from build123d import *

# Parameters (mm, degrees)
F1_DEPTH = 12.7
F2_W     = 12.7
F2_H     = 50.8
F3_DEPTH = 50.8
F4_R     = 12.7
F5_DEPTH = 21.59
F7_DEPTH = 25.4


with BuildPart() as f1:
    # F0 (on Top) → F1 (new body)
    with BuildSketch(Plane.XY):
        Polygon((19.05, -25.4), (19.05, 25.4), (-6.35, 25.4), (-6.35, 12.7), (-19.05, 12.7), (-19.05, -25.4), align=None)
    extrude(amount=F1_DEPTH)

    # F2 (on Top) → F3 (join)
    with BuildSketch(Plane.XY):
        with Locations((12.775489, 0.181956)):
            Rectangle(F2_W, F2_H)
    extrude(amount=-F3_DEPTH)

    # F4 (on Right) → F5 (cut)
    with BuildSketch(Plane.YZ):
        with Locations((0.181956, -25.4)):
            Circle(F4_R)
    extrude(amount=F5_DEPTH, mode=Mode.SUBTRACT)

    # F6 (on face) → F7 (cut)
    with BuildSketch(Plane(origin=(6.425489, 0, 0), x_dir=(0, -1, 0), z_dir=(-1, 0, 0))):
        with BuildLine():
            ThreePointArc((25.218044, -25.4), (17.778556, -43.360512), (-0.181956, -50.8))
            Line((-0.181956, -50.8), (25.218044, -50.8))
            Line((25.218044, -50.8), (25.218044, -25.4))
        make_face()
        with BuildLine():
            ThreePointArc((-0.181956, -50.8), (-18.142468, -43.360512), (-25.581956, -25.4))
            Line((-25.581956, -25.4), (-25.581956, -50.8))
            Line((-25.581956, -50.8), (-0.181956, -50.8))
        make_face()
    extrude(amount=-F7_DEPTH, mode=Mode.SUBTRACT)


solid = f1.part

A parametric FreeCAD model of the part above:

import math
import FreeCAD as App
import Part
import Sketcher
Q = App.Units.Quantity


def add_polygon(sketch, points):
    """Adds a closed chain of lines whose ends are joined by coincident constraints."""
    first, n = sketch.GeometryCount, len(points)
    for a, b in zip(points, points[1:] + points[:1]):
        sketch.addGeometry(Part.LineSegment(App.Vector(*a, 0), App.Vector(*b, 0)), False)
    for i in range(n):
        sketch.addConstraint(Sketcher.Constraint("Coincident", first + i, 2, first + (i + 1) % n, 1))

doc = App.newDocument("Part")
body = doc.addObject("PartDesign::Body", "Body")

# Sketch on XY plane
sketch1 = body.newObject("Sketcher::SketchObject", "Sketch")
sketch1.AttachmentSupport = (doc.getObject("XY_Plane"), [""])
sketch1.MapMode = "FlatFace"
add_polygon(sketch1, [(19, -25), (19, 25), (-6, 25), (-6, 13), (-19, 13), (-19, -25)])  # lines 0-5
sketch1.addConstraint([
    Sketcher.Constraint("Vertical", 0),
    Sketcher.Constraint("Horizontal", 1),
    Sketcher.Constraint("Vertical", 2),
    Sketcher.Constraint("Horizontal", 3),
    Sketcher.Constraint("Vertical", 4),
    Sketcher.Constraint("Horizontal", 5),
    Sketcher.Constraint("Symmetric", 0, 2, 4, 2, -1, 1),
    Sketcher.Constraint("Equal", 3, 2),
    Sketcher.Constraint("Equal", 5, 4),
    Sketcher.Constraint("DistanceX", 1, 2, 1, 1, Q("1 in")),
    Sketcher.Constraint("DistanceY", 0, 1, 0, 2, Q("2 in")),
])
pad1 = body.newObject("PartDesign::Pad", "Pad")
pad1.Profile = sketch1
pad1.Length = Q("0.5 in")

# Sketch on XY plane
sketch2 = body.newObject("Sketcher::SketchObject", "Sketch001")
sketch2.AttachmentSupport = (doc.getObject("XY_Plane"), [""])
sketch2.MapMode = "FlatFace"
add_polygon(sketch2, [(6, 26), (6, -25), (19, -25), (19, 26)])  # lines 0-3
sketch2.addConstraint([
    Sketcher.Constraint("Vertical", 0),
    Sketcher.Constraint("Horizontal", 1),
    Sketcher.Constraint("Vertical", 2),
    Sketcher.Constraint("Horizontal", 3),
    Sketcher.Constraint("DistanceY", 0, 2, 0, 1, Q("2 in")),
    Sketcher.Constraint("DistanceX", 1, 1, 1, 2, Q("0.5 in")),
    Sketcher.Constraint("DistanceX", -1, 1, 0, 2, 6.425489),
    Sketcher.Constraint("DistanceY", 0, 2, -1, 1, 25.218044),
])
pad2 = body.newObject("PartDesign::Pad", "Pad001")
pad2.Profile = sketch2
pad2.Length = Q("2 in")
pad2.Reversed = True

# Sketch on YZ plane
sketch3 = body.newObject("Sketcher::SketchObject", "Sketch002")
sketch3.AttachmentSupport = (doc.getObject("YZ_Plane"), [""])
sketch3.MapMode = "FlatFace"
sketch3.addGeometry(Part.Circle(App.Vector(0, -25, 0), App.Vector(0, 0, 1), 13), False)
sketch3.addConstraint([
    Sketcher.Constraint("Diameter", 0, Q("1 in")),
    Sketcher.Constraint("DistanceY", 0, 3, -1, 1, Q("1 in")),
    Sketcher.Constraint("DistanceX", -1, 1, 0, 3, 0.181956),
])
pocket1 = body.newObject("PartDesign::Pocket", "Pocket")
pocket1.Profile = sketch3
pocket1.Length = Q("0.85 in")
pocket1.Reversed = True

# Sketch on YZ plane
sketch4 = body.newObject("Sketcher::SketchObject", "Sketch003")
sketch4.AttachmentSupport = (doc.getObject("YZ_Plane"), [""])
sketch4.MapMode = "FlatFace"
sketch4.AttachmentOffset = App.Placement(App.Vector(0, 0, 6.425489), App.Rotation())
sketch4.addGeometry([
    Part.ArcOfCircle(Part.Circle(App.Vector(0, -25, 0), App.Vector(0, 0, 1), 25), math.radians(-180), math.radians(-90)),  # 0
    Part.LineSegment(App.Vector(0, -51, 0), App.Vector(-25, -51, 0)),  # 1
    Part.LineSegment(App.Vector(-25, -51, 0), App.Vector(-25, -25, 0)),  # 2
    Part.ArcOfCircle(Part.Circle(App.Vector(0, -25, 0), App.Vector(0, 0, 1), 25), math.radians(-90), math.radians(0)),  # 3
    Part.LineSegment(App.Vector(26, -25, 0), App.Vector(26, -51, 0)),  # 4
    Part.LineSegment(App.Vector(26, -51, 0), App.Vector(0, -51, 0)),  # 5
], False)
sketch4.addConstraint([
    Sketcher.Constraint("Tangent", 0, 2, 1, 1),
    Sketcher.Constraint("Coincident", 1, 2, 2, 1),
    Sketcher.Constraint("Tangent", 2, 2, 0, 1),
    Sketcher.Constraint("Tangent", 3, 2, 4, 1),
    Sketcher.Constraint("Coincident", 4, 2, 5, 1),
    Sketcher.Constraint("Tangent", 5, 2, 3, 1),
    Sketcher.Constraint("Horizontal", 1),
    Sketcher.Constraint("Vertical", 2),
    Sketcher.Constraint("Vertical", 4),
    Sketcher.Constraint("Horizontal", 5),
    Sketcher.Constraint("Coincident", 3, 3, 0, 3),
    Sketcher.Constraint("Equal", 0, 3),
    Sketcher.Constraint("Radius", 0, Q("1 in")),
    Sketcher.Constraint("DistanceY", 0, 3, -1, 1, Q("1 in")),
    Sketcher.Constraint("DistanceX", -1, 1, 0, 3, 0.181957),
])
pocket2 = body.newObject("PartDesign::Pocket", "Pocket001")
pocket2.Profile = sketch4
pocket2.Length = Q("1 in")
pocket2.Reversed = True

doc.recompute()
